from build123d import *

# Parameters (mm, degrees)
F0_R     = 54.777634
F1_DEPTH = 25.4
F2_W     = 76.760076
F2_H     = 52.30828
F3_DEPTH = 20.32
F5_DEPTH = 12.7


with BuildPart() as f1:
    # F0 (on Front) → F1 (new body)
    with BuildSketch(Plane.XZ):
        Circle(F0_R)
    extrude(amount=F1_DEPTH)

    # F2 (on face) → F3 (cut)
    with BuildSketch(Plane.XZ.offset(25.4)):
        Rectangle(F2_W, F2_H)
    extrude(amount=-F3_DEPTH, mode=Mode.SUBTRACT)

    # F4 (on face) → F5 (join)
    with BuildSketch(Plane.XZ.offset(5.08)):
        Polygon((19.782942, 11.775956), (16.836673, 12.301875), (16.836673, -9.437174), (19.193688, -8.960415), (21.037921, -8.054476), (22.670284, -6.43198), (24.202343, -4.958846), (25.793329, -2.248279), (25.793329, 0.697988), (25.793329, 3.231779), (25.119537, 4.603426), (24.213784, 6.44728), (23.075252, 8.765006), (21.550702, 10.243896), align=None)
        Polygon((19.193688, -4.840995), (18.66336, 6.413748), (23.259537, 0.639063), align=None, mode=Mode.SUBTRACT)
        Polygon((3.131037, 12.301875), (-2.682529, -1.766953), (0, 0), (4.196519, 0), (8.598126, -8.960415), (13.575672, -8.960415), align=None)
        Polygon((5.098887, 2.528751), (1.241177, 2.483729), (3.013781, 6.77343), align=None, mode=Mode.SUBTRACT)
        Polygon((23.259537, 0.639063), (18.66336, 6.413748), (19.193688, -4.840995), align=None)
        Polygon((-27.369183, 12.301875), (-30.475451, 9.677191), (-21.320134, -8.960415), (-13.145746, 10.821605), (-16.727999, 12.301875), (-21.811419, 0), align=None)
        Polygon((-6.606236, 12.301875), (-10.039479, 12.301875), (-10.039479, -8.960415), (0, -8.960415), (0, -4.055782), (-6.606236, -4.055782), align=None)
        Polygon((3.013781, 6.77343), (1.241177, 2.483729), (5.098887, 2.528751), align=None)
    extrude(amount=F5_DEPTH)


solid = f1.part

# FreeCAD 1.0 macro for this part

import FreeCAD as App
import Part
import Sketcher

V = App.Vector
Q = App.Units.Quantity

doc = App.newDocument("Part")
body = doc.addObject("PartDesign::Body", "Body")

sketch1 = body.newObject("Sketcher::SketchObject", "Sketch")
sketch1.AttachmentSupport = (doc.getObject("XZ_Plane"), [""])
sketch1.MapMode = "FlatFace"
sketch1.addGeometry(Part.Circle(V(0, 0, 0), V(0, 0, 1), 55), False)
sketch1.addConstraint([
    Sketcher.Constraint("Coincident", 0, 3, -1, 1),
    Sketcher.Constraint("Diameter", 0, Q("109.555268 mm")),
])
pad1 = body.newObject("PartDesign::Pad", "Pad")
pad1.Profile = sketch1
pad1.Length = Q("1 in")

sketch2 = body.newObject("Sketcher::SketchObject", "Sketch001")
sketch2.AttachmentSupport = (doc.getObject("XZ_Plane"), [""])
sketch2.MapMode = "FlatFace"
sketch2.AttachmentOffset = App.Placement(V(0, 0, 1 * 25.4), App.Rotation())
sketch2.addGeometry([
    Part.LineSegment(V(-38, 26, 0), V(-38, -26, 0)),
    Part.LineSegment(V(-38, -26, 0), V(38, -26, 0)),
    Part.LineSegment(V(38, -26, 0), V(38, 26, 0)),
    Part.LineSegment(V(38, 26, 0), V(-38, 26, 0)),
], False)
sketch2.addConstraint([
    Sketcher.Constraint("Coincident", 0, 2, 1, 1),
    Sketcher.Constraint("Coincident", 1, 2, 2, 1),
    Sketcher.Constraint("Coincident", 2, 2, 3, 1),
    Sketcher.Constraint("Coincident", 3, 2, 0, 1),
    Sketcher.Constraint("Vertical", 0),
    Sketcher.Constraint("Horizontal", 1),
    Sketcher.Constraint("Vertical", 2),
    Sketcher.Constraint("Horizontal", 3),
    Sketcher.Constraint("Symmetric", 0, 2, 2, 2, -1, 1),
    Sketcher.Constraint("DistanceY", 0, 2, 0, 1, Q("52.30828 mm")),
    Sketcher.Constraint("DistanceX", 1, 1, 1, 2, Q("76.760076 mm")),
])
pocket1 = body.newObject("PartDesign::Pocket", "Pocket")
pocket1.Profile = sketch2
pocket1.Length = Q("0.8 in")

sketch3 = body.newObject("Sketcher::SketchObject", "Sketch002")
sketch3.AttachmentSupport = (doc.getObject("XZ_Plane"), [""])
sketch3.MapMode = "FlatFace"
sketch3.AttachmentOffset = App.Placement(V(0, 0, 0.2 * 25.4), App.Rotation())
sketch3.addGeometry([
    Part.LineSegment(V(19.8, 11.8, 0), V(16.8, 12.3, 0)),
    Part.LineSegment(V(16.8, 12.3, 0), V(16.8, -9.4, 0)),
    Part.LineSegment(V(16.8, -9.4, 0), V(19.2, -9, 0)),
    Part.LineSegment(V(19.2, -9, 0), V(21, -8.1, 0)),
    Part.LineSegment(V(21, -8.1, 0), V(22.7, -6.4, 0)),
    Part.LineSegment(V(22.7, -6.4, 0), V(24.2, -5, 0)),
    Part.LineSegment(V(24.2, -5, 0), V(25.8, -2.2, 0)),
    Part.LineSegment(V(25.8, -2.2, 0), V(25.8, 3.2, 0)),
    Part.LineSegment(V(25.8, 3.2, 0), V(25.1, 4.6, 0)),
    Part.LineSegment(V(25.1, 4.6, 0), V(24.2, 6.4, 0)),
    Part.LineSegment(V(24.2, 6.4, 0), V(23.1, 8.8, 0)),
    Part.LineSegment(V(23.1, 8.8, 0), V(21.6, 10.2, 0)),
    Part.LineSegment(V(21.6, 10.2, 0), V(19.8, 11.8, 0)),
    Part.LineSegment(V(3.1, 12.3, 0), V(-2.7, -1.8, 0)),
    Part.LineSegment(V(-2.7, -1.8, 0), V(0, 0, 0)),
    Part.LineSegment(V(0, 0, 0), V(4.2, 0, 0)),
    Part.LineSegment(V(4.2, 0, 0), V(8.6, -9, 0)),
    Part.LineSegment(V(8.6, -9, 0), V(13.6, -9, 0)),
    Part.LineSegment(V(13.6, -9, 0), V(3.1, 12.3, 0)),
    Part.LineSegment(V(-27.4, 12.3, 0), V(-30.5, 9.7, 0)),
    Part.LineSegment(V(-30.5, 9.7, 0), V(-21.3, -9, 0)),
    Part.LineSegment(V(-21.3, -9, 0), V(-13.1, 10.8, 0)),
    Part.LineSegment(V(-13.1, 10.8, 0), V(-16.7, 12.3, 0)),
    Part.LineSegment(V(-16.7, 12.3, 0), V(-21.8, 0, 0)),
    Part.LineSegment(V(-21.8, 0, 0), V(-27.4, 12.3, 0)),
    Part.LineSegment(V(-6.6, 12.3, 0), V(-10, 12.3, 0)),
    Part.LineSegment(V(-10, 12.3, 0), V(-10, -9, 0)),
    Part.LineSegment(V(-10, -9, 0), V(0, -9, 0)),
    Part.LineSegment(V(0, -9, 0), V(0, -4.1, 0)),
    Part.LineSegment(V(0, -4.1, 0), V(-6.6, -4.1, 0)),
    Part.LineSegment(V(-6.6, -4.1, 0), V(-6.6, 12.3, 0)),
], False)
sketch3.addConstraint([
    Sketcher.Constraint("Coincident", 0, 2, 1, 1),
    Sketcher.Constraint("Coincident", 1, 2, 2, 1),
    Sketcher.Constraint("Coincident", 2, 2, 3, 1),
    Sketcher.Constraint("Coincident", 3, 2, 4, 1),
    Sketcher.Constraint("Coincident", 4, 2, 5, 1),
    Sketcher.Constraint("Coincident", 5, 2, 6, 1),
    Sketcher.Constraint("Coincident", 6, 2, 7, 1),
    Sketcher.Constraint("Coincident", 7, 2, 8, 1),
    Sketcher.Constraint("Coincident", 8, 2, 9, 1),
    Sketcher.Constraint("Coincident", 9, 2, 10, 1),
    Sketcher.Constraint("Coincident", 10, 2, 11, 1),
    Sketcher.Constraint("Coincident", 11, 2, 12, 1),
    Sketcher.Constraint("Coincident", 12, 2, 0, 1),
    Sketcher.Constraint("Coincident", 13, 2, 14, 1),
    Sketcher.Constraint("Coincident", 14, 2, 15, 1),
    Sketcher.Constraint("Coincident", 15, 2, 16, 1),
    Sketcher.Constraint("Coincident", 16, 2, 17, 1),
    Sketcher.Constraint("Coincident", 17, 2, 18, 1),
    Sketcher.Constraint("Coincident", 18, 2, 13, 1),
    Sketcher.Constraint("Coincident", 19, 2, 20, 1),
    Sketcher.Constraint("Coincident", 20, 2, 21, 1),
    Sketcher.Constraint("Coincident", 21, 2, 22, 1),
    Sketcher.Constraint("Coincident", 22, 2, 23, 1),
    Sketcher.Constraint("Coincident", 23, 2, 24, 1),
    Sketcher.Constraint("Coincident", 24, 2, 19, 1),
    Sketcher.Constraint("Coincident", 25, 2, 26, 1),
    Sketcher.Constraint("Coincident", 26, 2, 27, 1),
    Sketcher.Constraint("Coincident", 27, 2, 28, 1),
    Sketcher.Constraint("Coincident", 28, 2, 29, 1),
    Sketcher.Constraint("Coincident", 29, 2, 30, 1),
    Sketcher.Constraint("Coincident", 30, 2, 25, 1),
    Sketcher.Constraint("Vertical", 1),
    Sketcher.Constraint("Vertical", 7),
    Sketcher.Constraint("Horizontal", 15),
    Sketcher.Constraint("Horizontal", 17),
    Sketcher.Constraint("Horizontal", 25),
    Sketcher.Constraint("Vertical", 26),
    Sketcher.Constraint("Horizontal", 27),
    Sketcher.Constraint("Vertical", 28),
    Sketcher.Constraint("Horizontal", 29),
    Sketcher.Constraint("Vertical", 30),
    Sketcher.Constraint("Coincident", 14, 2, -1, 1),
    Sketcher.Constraint("PointOnObject", 23, 2, -1),
    Sketcher.Constraint("PointOnObject", 27, 2, -2),
    Sketcher.Constraint("Perpendicular", 3, 8),
    Sketcher.Constraint("Parallel", 8, 9),
    Sketcher.Constraint("Parallel", 9, 10),
    Sketcher.Constraint("Parallel", 10, 16),
    Sketcher.Constraint("Parallel", 16, 18),
    Sketcher.Constraint("Parallel", 18, 20),
    Sketcher.Constraint("Parallel", 13, 21),
    Sketcher.Constraint("Perpendicular", 21, 22),
    Sketcher.Constraint("Perpendicular", 22, 23),
    Sketcher.Constraint("Horizontal", 2, 2, 16, 2),
    Sketcher.Constraint("Horizontal", 0, 2, 18, 2),
    Sketcher.Constraint("Horizontal", 17, 2, 20, 2),
    Sketcher.Constraint("Horizontal", 18, 2, 22, 2),
    Sketcher.Constraint("Horizontal", 22, 2, 24, 2),
    Sketcher.Constraint("Horizontal", 24, 2, 25, 2),
    Sketcher.Constraint("Horizontal", 20, 2, 26, 2),
    Sketcher.Constraint("Distance", 5, Q("2.125401 mm")),
    Sketcher.Constraint("Distance", 11, Q("2.123998 mm")),
    Sketcher.Constraint("DistanceX", 15, 1, 15, 2, Q("4.196519 mm")),
    Sketcher.Constraint("DistanceX", 27, 1, 27, 2, Q("10.039479 mm")),
    Sketcher.Constraint("DistanceY", 1, 2, 1, 1, Q("21.739049 mm")),
    Sketcher.Constraint("DistanceY", 26, 2, 26, 1, Q("21.26229 mm")),
    Sketcher.Constraint("DistanceX", 22, 2, -1, 1, Q("16.727999 mm")),
    Sketcher.Constraint("DistanceY", 1, 2, 3, 2, Q("1.382698 mm")),
    Sketcher.Constraint("DistanceY", 4, 2, 6, 2, Q("4.183701 mm")),
    Sketcher.Constraint("DistanceY", 7, 2, 9, 2, Q("3.215501 mm")),
    Sketcher.Constraint("DistanceX", 13, 2, 1, 2, Q("19.519202 mm")),
    Sketcher.Constraint("DistanceX", 17, 2, 1, 2, Q("3.261001 mm")),
    Sketcher.Constraint("Distance", 0, Q("2.99284 mm")),
    Sketcher.Constraint("Distance", 2, Q("2.404749 mm")),
    Sketcher.Constraint("Distance", 3, Q("2.054731 mm")),
    Sketcher.Constraint("Distance", 9, Q("2.054309 mm")),
    Sketcher.Constraint("Distance", 10, Q("2.582268 mm")),
    Sketcher.Constraint("Distance", 12, Q("2.33927 mm")),
    Sketcher.Constraint("Distance", 20, Q("20.764879 mm")),
    Sketcher.Constraint("Distance", 24, Q("13.499069 mm")),
    Sketcher.Constraint("DistanceX", 17, 1, 17, 2, Q("4.977546 mm")),
    Sketcher.Constraint("DistanceX", 25, 2, 25, 1, Q("3.433243 mm")),
    Sketcher.Constraint("DistanceY", 7, 1, 7, 2, Q("5.480058 mm")),
    Sketcher.Constraint("DistanceY", 28, 1, 28, 2, Q("4.904633 mm")),
    Sketcher.Constraint("DistanceX", -1, 1, 2, 2, Q("19.193688 mm")),
    Sketcher.Constraint("DistanceY", 4, 2, -1, 1, Q("6.43198 mm")),
    Sketcher.Constraint("DistanceX", -1, 1, 6, 2, Q("25.793329 mm")),
    Sketcher.Constraint("DistanceX", -1, 1, 12, 2, Q("19.782942 mm")),
    Sketcher.Constraint("DistanceX", 19, 2, -1, 1, Q("30.475451 mm")),
    Sketcher.Constraint("DistanceX", 23, 2, -1, 1, Q("21.811419 mm")),
    Sketcher.Constraint("DistanceX", 1, 2, 4, 2, Q("5.833611 mm")),
    Sketcher.Constraint("DistanceX", 4, 2, 5, 2, Q("1.532059 mm")),
])
pad2 = body.newObject("PartDesign::Pad", "Pad001")
pad2.Profile = sketch3
pad2.Length = Q("0.5 in")

doc.recompute()
